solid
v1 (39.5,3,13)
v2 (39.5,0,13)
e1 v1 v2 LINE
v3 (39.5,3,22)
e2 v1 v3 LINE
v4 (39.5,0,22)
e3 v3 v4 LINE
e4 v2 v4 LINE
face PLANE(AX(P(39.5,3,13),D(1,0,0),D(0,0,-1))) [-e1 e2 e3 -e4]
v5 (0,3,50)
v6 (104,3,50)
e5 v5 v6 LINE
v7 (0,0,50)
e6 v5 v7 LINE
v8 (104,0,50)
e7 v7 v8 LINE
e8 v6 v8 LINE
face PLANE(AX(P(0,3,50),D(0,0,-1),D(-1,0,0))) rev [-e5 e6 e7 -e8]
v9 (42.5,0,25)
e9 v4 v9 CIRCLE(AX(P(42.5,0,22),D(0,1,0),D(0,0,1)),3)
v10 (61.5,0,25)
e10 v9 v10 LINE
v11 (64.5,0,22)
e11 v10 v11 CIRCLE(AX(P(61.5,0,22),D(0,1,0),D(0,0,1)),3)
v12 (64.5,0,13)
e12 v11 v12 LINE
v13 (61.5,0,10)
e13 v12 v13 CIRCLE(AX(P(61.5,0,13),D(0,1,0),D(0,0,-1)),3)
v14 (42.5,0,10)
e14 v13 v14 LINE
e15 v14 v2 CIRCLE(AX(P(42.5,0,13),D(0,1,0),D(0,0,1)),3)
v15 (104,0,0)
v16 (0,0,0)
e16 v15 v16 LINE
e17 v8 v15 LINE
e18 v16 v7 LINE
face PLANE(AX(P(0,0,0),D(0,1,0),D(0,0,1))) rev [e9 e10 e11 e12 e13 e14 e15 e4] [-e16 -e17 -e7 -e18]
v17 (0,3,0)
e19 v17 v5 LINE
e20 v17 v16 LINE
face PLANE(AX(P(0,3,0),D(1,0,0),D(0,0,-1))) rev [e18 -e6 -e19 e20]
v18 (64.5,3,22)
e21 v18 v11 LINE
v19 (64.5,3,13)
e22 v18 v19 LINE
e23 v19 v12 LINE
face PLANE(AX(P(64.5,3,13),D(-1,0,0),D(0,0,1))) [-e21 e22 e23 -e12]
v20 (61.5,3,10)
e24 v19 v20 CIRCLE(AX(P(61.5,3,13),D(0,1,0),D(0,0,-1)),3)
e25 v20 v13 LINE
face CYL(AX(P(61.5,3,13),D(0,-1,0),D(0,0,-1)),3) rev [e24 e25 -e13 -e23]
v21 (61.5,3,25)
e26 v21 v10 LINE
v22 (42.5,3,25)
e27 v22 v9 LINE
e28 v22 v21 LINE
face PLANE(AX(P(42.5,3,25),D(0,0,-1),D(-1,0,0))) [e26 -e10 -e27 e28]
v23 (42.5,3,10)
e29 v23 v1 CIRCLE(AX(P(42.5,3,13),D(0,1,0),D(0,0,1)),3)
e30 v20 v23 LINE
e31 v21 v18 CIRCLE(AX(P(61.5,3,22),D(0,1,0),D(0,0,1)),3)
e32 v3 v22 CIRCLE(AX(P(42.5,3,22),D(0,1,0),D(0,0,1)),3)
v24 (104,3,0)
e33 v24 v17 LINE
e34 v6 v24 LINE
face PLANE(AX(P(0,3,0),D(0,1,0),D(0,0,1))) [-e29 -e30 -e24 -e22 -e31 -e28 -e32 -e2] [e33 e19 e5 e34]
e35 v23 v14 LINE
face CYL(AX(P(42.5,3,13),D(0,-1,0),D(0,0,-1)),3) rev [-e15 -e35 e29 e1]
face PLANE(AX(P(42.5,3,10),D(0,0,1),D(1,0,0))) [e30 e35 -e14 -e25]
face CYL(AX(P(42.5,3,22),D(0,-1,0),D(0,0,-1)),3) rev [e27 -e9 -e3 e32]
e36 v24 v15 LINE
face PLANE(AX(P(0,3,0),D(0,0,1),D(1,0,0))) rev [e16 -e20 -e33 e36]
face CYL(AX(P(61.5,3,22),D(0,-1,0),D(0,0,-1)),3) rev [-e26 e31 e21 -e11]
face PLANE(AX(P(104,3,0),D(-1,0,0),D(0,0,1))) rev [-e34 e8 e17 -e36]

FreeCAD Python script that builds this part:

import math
import FreeCAD as App
import Part
import Sketcher

doc = App.newDocument("Part")
params = doc.addObject("Spreadsheet::Sheet", "Params")
for row, (alias, value) in enumerate([
    ("sketch1_radius", "3 mm"),
    ("sketch1_width", "104 mm"),
    ("sketch1_width2", "19 mm"),
    ("sketch1_height", "50 mm"),
    ("sketch1_height2", "9 mm"),
    ("pad1_length", "3 mm"),
], start=1):
    params.set(f"A{row}", alias)
    params.set(f"B{row}", "=" + value)
    params.setAlias(f"B{row}", alias)

body = doc.addObject("PartDesign::Body", "Body")

sketch1 = doc.addObject("Sketcher::SketchObject", "Sketch")
body.addObject(sketch1)
sketch1.AttachmentSupport = (doc.XZ_Plane, [""])
sketch1.MapMode = "FlatFace"
sketch1.addGeometry([
    Part.LineSegment(App.Vector(0, 0, 0), App.Vector(0, 50, 0)),
    Part.LineSegment(App.Vector(0, 50, 0), App.Vector(104, 50, 0)),
    Part.LineSegment(App.Vector(104, 50, 0), App.Vector(104, 0, 0)),
    Part.LineSegment(App.Vector(104, 0, 0), App.Vector(0, 0, 0)),
    Part.ArcOfCircle(Part.Circle(App.Vector(42.5, 13, 0), App.Vector(0, 0, 1), 3), math.radians(180), math.radians(270)),
    Part.LineSegment(App.Vector(42.5, 10, 0), App.Vector(61.5, 10, 0)),
    Part.ArcOfCircle(Part.Circle(App.Vector(61.5, 13, 0), App.Vector(0, 0, 1), 3), math.radians(-90), math.radians(0)),
    Part.LineSegment(App.Vector(64.5, 13, 0), App.Vector(64.5, 22, 0)),
    Part.ArcOfCircle(Part.Circle(App.Vector(61.5, 22, 0), App.Vector(0, 0, 1), 3), math.radians(0), math.radians(90)),
    Part.LineSegment(App.Vector(61.5, 25, 0), App.Vector(42.5, 25, 0)),
    Part.ArcOfCircle(Part.Circle(App.Vector(42.5, 22, 0), App.Vector(0, 0, 1), 3), math.radians(90), math.radians(180)),
    Part.LineSegment(App.Vector(39.5, 22, 0), App.Vector(39.5, 13, 0)),
], False)
sketch1.addConstraint([
    Sketcher.Constraint("Coincident", 0, 2, 1, 1),
    Sketcher.Constraint("Coincident", 1, 2, 2, 1),
    Sketcher.Constraint("Coincident", 2, 2, 3, 1),
    Sketcher.Constraint("Coincident", 3, 2, 0, 1),
    Sketcher.Constraint("Tangent", 4, 2, 5, 1),
    Sketcher.Constraint("Tangent", 5, 2, 6, 1),
    Sketcher.Constraint("Tangent", 6, 2, 7, 1),
    Sketcher.Constraint("Tangent", 7, 2, 8, 1),
    Sketcher.Constraint("Tangent", 8, 2, 9, 1),
    Sketcher.Constraint("Tangent", 9, 2, 10, 1),
    Sketcher.Constraint("Tangent", 10, 2, 11, 1),
    Sketcher.Constraint("Tangent", 11, 2, 4, 1),
    Sketcher.Constraint("Vertical", 0),
    Sketcher.Constraint("Horizontal", 1),
    Sketcher.Constraint("Vertical", 2),
    Sketcher.Constraint("Horizontal", 3),
    Sketcher.Constraint("Horizontal", 5),
    Sketcher.Constraint("Vertical", 7),
    Sketcher.Constraint("Horizontal", 9),
    Sketcher.Constraint("Vertical", 11),
    Sketcher.Constraint("Coincident", 3, 2, -1, 1),
    Sketcher.Constraint("Equal", 4, 6),
    Sketcher.Constraint("Equal", 6, 8),
    Sketcher.Constraint("Equal", 8, 10),
    Sketcher.Constraint("Radius", 4, 3.0),
    Sketcher.Constraint("DistanceX", 1, 1, 1, 2, 104.0),
    Sketcher.Constraint("DistanceX", 5, 1, 5, 2, 19.0),
    Sketcher.Constraint("DistanceY", 0, 1, 0, 2, 50.0),
    Sketcher.Constraint("DistanceY", 7, 1, 7, 2, 9.0),
    Sketcher.Constraint("DistanceY", -1, 1, 4, 3, 13.0),
    Sketcher.Constraint("DistanceX", -1, 1, 4, 3, 42.5),
])
sketch1.setExpression("Constraints[24]", "Params.sketch1_radius")
sketch1.setExpression("Constraints[25]", "Params.sketch1_width")
sketch1.setExpression("Constraints[26]", "Params.sketch1_width2")
sketch1.setExpression("Constraints[27]", "Params.sketch1_height")
sketch1.setExpression("Constraints[28]", "Params.sketch1_height2")
pad1 = doc.addObject("PartDesign::Pad", "Pad")
body.addObject(pad1)
pad1.Profile = sketch1
pad1.setExpression("Length", "Params.pad1_length")
pad1.Reversed = True

doc.recompute()
